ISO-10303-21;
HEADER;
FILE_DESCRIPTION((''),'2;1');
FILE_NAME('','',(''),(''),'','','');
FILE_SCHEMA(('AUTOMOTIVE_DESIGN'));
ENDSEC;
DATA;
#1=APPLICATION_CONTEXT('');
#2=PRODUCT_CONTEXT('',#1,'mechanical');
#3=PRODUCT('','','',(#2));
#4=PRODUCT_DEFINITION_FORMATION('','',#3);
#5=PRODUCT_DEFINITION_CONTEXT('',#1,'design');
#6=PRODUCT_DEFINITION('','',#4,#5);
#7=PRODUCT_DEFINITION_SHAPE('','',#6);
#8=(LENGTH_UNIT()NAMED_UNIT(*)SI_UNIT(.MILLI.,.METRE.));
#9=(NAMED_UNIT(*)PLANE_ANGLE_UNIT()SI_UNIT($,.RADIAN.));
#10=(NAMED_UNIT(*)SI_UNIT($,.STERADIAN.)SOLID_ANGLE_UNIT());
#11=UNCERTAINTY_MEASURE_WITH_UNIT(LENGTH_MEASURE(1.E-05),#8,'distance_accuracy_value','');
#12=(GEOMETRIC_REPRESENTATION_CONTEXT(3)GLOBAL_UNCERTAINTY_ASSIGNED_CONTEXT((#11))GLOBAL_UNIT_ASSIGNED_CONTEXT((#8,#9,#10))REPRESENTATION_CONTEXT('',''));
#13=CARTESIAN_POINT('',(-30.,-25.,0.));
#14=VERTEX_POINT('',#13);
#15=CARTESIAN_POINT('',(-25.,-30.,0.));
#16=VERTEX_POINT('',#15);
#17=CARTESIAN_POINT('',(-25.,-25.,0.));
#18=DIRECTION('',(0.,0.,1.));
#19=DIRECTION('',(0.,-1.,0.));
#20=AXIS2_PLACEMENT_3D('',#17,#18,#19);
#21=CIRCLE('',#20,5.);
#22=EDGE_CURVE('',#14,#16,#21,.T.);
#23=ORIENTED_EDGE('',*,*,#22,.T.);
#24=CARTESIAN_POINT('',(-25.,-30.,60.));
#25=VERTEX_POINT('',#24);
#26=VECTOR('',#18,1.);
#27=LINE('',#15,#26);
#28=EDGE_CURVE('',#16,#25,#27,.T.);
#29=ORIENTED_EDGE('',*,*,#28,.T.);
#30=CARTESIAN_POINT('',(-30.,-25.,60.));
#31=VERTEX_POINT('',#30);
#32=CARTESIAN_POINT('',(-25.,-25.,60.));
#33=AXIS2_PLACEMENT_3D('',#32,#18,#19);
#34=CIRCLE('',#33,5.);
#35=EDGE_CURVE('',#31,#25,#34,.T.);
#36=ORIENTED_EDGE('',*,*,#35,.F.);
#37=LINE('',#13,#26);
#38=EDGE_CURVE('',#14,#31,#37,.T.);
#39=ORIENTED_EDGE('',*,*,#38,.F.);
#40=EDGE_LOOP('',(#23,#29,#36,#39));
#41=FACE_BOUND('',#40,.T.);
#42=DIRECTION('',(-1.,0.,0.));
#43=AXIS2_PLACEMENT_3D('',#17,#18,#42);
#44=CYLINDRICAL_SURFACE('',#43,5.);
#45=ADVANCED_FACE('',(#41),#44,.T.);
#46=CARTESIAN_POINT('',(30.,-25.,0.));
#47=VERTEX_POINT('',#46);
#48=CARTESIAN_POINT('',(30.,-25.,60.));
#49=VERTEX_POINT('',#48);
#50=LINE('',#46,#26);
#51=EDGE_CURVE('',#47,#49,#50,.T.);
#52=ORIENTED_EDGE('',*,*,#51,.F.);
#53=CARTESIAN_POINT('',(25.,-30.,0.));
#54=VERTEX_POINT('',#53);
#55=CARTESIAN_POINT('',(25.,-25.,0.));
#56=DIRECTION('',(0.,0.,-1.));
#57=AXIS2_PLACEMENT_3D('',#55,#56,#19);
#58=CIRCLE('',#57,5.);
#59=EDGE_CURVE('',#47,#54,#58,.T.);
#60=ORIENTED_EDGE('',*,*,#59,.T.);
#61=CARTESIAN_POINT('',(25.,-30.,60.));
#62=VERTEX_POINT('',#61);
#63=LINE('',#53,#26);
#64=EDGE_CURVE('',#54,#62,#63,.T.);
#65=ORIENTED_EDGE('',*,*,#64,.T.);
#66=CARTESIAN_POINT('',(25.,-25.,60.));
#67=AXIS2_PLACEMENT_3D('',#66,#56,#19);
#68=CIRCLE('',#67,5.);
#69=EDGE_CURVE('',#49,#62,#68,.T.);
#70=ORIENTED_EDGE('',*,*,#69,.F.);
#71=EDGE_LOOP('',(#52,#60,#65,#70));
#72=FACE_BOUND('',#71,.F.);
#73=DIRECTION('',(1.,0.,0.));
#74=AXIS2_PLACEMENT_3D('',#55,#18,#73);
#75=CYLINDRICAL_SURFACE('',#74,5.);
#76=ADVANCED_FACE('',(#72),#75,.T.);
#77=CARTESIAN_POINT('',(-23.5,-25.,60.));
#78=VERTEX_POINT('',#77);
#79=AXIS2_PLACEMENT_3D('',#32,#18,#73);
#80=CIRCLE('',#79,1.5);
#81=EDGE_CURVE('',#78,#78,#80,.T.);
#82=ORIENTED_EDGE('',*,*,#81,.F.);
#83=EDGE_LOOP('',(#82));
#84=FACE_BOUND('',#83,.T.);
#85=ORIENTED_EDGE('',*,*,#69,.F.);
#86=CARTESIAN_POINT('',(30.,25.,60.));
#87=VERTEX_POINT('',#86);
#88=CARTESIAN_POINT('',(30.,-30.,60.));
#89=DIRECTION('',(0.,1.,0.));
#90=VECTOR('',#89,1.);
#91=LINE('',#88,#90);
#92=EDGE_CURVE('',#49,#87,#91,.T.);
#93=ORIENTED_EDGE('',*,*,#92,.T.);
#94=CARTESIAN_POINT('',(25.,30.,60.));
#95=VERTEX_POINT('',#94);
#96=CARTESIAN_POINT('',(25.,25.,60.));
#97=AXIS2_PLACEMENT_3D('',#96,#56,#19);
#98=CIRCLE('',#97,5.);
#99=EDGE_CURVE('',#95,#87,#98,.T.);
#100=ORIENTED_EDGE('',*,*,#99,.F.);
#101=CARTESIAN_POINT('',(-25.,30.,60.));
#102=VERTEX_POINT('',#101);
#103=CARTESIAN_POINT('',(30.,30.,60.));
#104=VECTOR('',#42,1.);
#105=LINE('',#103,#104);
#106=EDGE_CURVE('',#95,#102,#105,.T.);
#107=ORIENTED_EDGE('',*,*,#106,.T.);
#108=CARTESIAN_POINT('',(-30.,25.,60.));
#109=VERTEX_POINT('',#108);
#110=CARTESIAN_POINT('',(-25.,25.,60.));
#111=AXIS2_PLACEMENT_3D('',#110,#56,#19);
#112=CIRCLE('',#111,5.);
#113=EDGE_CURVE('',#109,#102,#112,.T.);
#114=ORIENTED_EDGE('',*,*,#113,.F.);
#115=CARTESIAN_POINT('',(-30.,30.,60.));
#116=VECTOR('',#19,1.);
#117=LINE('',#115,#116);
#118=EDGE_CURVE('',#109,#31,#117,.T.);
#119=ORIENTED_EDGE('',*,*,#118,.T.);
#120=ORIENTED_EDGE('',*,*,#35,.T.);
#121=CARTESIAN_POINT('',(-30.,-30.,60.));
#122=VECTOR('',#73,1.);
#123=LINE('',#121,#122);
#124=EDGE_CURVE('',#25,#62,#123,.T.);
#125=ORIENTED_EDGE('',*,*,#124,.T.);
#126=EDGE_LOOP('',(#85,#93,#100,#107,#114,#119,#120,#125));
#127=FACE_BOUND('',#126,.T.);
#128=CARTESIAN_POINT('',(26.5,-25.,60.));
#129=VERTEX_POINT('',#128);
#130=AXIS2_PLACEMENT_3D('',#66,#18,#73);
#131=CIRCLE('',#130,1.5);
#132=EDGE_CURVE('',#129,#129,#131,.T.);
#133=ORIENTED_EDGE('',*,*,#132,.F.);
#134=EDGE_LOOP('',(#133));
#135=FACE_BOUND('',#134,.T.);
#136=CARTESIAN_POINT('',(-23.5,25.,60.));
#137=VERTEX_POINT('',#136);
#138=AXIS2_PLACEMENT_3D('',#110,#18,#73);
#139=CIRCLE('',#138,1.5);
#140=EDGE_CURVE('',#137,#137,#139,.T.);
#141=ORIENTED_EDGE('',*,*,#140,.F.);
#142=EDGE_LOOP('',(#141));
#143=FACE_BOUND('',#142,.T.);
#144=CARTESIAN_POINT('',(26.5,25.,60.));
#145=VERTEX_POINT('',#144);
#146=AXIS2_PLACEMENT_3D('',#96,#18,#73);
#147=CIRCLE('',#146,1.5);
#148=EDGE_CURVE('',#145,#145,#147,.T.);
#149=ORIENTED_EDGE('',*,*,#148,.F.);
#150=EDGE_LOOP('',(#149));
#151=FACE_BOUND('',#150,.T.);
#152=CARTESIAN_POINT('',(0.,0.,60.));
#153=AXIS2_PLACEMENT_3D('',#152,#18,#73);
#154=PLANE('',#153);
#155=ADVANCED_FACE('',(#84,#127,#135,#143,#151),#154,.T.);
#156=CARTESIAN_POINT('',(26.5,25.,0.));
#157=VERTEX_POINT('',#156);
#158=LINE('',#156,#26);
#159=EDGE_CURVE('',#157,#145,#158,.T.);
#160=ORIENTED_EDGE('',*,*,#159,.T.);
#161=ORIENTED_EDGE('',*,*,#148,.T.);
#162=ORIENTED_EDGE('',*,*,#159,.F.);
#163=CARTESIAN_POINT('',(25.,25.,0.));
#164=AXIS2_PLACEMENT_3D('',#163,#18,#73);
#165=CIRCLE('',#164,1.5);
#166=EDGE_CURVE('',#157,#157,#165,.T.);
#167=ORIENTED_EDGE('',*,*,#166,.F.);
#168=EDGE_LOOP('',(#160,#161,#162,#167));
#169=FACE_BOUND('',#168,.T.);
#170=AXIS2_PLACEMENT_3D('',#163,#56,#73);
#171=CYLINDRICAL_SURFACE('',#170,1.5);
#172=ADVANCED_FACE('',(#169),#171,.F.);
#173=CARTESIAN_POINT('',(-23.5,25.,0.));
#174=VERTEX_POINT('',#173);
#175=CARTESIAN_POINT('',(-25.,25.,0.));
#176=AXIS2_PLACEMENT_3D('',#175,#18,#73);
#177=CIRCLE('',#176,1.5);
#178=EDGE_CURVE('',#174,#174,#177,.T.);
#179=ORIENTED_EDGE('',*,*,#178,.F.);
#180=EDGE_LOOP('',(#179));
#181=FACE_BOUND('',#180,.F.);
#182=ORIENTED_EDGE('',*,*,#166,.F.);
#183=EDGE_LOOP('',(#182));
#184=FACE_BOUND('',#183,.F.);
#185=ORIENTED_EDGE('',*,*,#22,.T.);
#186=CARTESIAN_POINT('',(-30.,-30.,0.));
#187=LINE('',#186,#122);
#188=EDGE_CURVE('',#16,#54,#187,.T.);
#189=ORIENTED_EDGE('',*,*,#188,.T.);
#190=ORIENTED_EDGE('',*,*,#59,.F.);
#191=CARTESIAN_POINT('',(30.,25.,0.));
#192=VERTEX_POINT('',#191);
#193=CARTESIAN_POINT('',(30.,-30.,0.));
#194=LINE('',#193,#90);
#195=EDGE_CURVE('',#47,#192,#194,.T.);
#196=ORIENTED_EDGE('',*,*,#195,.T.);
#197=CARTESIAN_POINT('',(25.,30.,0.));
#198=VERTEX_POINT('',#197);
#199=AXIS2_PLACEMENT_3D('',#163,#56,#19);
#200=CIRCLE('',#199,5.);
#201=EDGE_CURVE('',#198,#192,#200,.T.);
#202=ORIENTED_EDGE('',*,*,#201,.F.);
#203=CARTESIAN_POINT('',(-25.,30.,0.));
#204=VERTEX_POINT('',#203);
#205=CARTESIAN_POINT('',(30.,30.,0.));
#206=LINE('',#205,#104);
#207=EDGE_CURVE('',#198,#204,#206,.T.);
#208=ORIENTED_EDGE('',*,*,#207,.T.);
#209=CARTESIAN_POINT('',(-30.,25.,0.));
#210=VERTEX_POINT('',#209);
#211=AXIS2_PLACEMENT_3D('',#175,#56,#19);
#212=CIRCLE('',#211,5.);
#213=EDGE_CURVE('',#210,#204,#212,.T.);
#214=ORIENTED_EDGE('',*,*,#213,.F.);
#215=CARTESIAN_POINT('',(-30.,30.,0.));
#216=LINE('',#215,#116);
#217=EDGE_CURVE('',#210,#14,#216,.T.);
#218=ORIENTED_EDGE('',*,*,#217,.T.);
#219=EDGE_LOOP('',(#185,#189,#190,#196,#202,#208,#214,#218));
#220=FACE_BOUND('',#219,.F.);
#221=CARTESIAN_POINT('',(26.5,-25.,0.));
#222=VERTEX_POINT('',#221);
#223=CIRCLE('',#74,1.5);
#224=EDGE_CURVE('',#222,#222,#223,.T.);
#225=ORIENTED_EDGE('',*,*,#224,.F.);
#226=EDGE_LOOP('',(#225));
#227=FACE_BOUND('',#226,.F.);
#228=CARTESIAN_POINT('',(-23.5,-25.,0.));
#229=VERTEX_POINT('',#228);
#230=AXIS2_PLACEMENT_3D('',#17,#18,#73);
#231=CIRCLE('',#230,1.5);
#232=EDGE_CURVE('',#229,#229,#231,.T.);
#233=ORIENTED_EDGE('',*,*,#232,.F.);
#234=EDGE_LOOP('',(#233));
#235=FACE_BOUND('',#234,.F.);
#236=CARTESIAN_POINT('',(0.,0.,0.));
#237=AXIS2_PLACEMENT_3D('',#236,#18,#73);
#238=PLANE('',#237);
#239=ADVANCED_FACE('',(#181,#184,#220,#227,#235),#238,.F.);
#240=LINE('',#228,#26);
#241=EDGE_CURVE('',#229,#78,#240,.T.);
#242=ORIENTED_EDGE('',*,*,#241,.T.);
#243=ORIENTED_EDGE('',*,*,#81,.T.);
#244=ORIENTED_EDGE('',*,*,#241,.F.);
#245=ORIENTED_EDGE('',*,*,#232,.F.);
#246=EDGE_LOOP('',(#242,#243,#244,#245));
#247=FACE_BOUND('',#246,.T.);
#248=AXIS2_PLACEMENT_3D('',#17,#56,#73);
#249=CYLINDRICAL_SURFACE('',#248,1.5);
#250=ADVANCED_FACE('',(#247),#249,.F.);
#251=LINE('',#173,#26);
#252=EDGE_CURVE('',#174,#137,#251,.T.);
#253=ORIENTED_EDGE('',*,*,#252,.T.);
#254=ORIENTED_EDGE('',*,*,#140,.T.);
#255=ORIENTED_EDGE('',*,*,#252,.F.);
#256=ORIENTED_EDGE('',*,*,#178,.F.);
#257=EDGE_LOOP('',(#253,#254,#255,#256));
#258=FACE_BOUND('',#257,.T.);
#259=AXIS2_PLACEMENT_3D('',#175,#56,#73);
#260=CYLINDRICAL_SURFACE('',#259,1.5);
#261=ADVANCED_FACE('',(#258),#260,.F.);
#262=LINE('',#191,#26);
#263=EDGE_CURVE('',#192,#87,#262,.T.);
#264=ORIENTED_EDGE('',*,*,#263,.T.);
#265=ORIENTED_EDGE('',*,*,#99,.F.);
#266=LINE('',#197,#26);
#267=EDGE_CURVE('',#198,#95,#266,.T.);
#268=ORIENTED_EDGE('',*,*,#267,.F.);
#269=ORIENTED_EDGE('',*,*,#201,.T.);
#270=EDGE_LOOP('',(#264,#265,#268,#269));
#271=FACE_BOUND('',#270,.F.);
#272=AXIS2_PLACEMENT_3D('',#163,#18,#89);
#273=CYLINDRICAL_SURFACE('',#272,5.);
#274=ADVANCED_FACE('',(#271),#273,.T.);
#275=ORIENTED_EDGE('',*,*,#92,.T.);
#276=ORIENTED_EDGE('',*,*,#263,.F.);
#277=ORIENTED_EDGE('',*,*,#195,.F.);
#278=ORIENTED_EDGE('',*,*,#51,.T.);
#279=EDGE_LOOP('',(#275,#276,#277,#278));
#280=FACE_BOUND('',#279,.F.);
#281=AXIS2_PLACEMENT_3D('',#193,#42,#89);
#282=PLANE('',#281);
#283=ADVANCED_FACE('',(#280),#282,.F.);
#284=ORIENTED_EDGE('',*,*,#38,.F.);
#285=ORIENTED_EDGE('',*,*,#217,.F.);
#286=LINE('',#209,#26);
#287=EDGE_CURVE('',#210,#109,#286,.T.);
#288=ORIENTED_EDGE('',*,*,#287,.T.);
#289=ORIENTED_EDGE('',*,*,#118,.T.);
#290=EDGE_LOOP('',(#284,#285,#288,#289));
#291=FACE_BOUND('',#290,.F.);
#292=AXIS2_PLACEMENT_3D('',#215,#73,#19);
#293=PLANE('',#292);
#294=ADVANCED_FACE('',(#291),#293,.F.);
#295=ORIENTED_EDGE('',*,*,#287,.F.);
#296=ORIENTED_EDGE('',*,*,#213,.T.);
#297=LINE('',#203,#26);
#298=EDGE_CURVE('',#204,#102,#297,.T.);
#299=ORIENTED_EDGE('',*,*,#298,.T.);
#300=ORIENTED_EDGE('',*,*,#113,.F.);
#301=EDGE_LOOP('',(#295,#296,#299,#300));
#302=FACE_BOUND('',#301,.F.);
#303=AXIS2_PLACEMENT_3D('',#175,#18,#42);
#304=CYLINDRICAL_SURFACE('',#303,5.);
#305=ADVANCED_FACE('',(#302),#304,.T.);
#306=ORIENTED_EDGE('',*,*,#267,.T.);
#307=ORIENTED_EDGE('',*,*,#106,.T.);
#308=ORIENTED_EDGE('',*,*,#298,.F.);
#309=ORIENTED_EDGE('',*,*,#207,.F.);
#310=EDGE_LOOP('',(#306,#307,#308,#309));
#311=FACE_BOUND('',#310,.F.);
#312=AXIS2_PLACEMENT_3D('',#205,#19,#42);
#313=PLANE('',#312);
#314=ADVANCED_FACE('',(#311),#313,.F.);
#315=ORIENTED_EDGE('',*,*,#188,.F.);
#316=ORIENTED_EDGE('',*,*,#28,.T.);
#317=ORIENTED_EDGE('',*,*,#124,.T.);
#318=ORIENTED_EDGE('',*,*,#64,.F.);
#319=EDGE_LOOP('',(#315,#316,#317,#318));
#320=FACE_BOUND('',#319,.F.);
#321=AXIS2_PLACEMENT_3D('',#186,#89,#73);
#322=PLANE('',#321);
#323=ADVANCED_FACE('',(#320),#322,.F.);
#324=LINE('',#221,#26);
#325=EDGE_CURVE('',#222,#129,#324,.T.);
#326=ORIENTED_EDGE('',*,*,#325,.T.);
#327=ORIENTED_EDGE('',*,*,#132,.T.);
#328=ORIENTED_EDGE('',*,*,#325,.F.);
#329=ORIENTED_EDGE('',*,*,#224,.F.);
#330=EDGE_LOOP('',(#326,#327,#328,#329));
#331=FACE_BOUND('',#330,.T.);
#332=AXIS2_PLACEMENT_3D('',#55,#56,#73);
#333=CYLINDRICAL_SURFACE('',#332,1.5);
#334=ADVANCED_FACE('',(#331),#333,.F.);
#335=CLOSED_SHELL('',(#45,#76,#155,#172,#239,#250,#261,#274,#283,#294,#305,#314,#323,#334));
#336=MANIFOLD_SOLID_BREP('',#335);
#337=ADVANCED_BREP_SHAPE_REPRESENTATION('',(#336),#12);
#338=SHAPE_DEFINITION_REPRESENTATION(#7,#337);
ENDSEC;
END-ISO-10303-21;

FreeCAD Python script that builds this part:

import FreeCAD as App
import Part
import Sketcher
from FreeCAD import Vector


def edges_at(feature, points):
    """Names of the edges that pass closest to the given points."""
    edges = feature.Shape.Edges
    near = lambda p: min(range(len(edges)), key=lambda i: edges[i].distToShape(Part.Vertex(*p))[0])
    return sorted({f"Edge{near(p) + 1}" for p in points})


def add_polygon(sketch, points):
    """Adds a closed chain of lines whose ends are joined by coincident constraints."""
    first, n = sketch.GeometryCount, len(points)
    for a, b in zip(points, points[1:] + points[:1]):
        sketch.addGeometry(Part.LineSegment(App.Vector(*a, 0), App.Vector(*b, 0)), False)
    for i in range(n):
        sketch.addConstraint(Sketcher.Constraint("Coincident", first + i, 2, first + (i + 1) % n, 1))

doc = App.newDocument("Part")
body = doc.addObject("PartDesign::Body", "Body")

# Sketch on XY plane
sketch1 = body.newObject("Sketcher::SketchObject", "Sketch")
sketch1.AttachmentSupport = (doc.getObject("XY_Plane"), [""])
sketch1.MapMode = "FlatFace"
add_polygon(sketch1, [(-30, 30), (-30, -30), (30, -30), (30, 30)])  # lines 0-3
sketch1.addGeometry(Part.Circle(Vector(-25, -25, 0), Vector(0, 0, 1), 1.5), False)  # 4
sketch1.addGeometry(Part.Circle(Vector(25, -25, 0), Vector(0, 0, 1), 1.5), False)  # 5
sketch1.addGeometry(Part.Circle(Vector(-25, 25, 0), Vector(0, 0, 1), 1.5), False)  # 6
sketch1.addGeometry(Part.Circle(Vector(25, 25, 0), Vector(0, 0, 1), 1.5), False)  # 7
sketch1.addConstraint([
    Sketcher.Constraint("Vertical", 0),
    Sketcher.Constraint("Horizontal", 1),
    Sketcher.Constraint("Vertical", 2),
    Sketcher.Constraint("Horizontal", 3),
    Sketcher.Constraint("Equal", 4, 5),
    Sketcher.Constraint("Equal", 5, 6),
    Sketcher.Constraint("Equal", 6, 7),
    Sketcher.Constraint("Symmetric", 5, 3, 6, 3, -1, 1),
    Sketcher.Constraint("Symmetric", 4, 3, 7, 3, -1, 1),
    Sketcher.Constraint("Symmetric", 0, 2, 2, 2, -1, 1),
    Sketcher.Constraint("Symmetric", 4, 3, 5, 3, -2),
    Sketcher.Constraint("Equal", 3, 0),
    Sketcher.Constraint("Diameter", 4, 3.0),
    Sketcher.Constraint("DistanceX", 1, 1, 1, 2, 60.0),
    Sketcher.Constraint("DistanceX", 0, 2, 4, 3, 5.0),
    Sketcher.Constraint("DistanceY", 0, 2, 4, 3, 5.0),
])
pad1 = body.newObject("PartDesign::Pad", "Pad")
pad1.Profile = sketch1
pad1.Length = 60
doc.recompute()

fillet = body.newObject("PartDesign::Fillet", "Fillet")
fillet.Base = (pad1, edges_at(pad1, [
    (-30, 30, 30),
    (-30, -30, 30),
    (30, -30, 30),
    (30, 30, 30),
]))
fillet.Radius = 5

doc.recompute()
